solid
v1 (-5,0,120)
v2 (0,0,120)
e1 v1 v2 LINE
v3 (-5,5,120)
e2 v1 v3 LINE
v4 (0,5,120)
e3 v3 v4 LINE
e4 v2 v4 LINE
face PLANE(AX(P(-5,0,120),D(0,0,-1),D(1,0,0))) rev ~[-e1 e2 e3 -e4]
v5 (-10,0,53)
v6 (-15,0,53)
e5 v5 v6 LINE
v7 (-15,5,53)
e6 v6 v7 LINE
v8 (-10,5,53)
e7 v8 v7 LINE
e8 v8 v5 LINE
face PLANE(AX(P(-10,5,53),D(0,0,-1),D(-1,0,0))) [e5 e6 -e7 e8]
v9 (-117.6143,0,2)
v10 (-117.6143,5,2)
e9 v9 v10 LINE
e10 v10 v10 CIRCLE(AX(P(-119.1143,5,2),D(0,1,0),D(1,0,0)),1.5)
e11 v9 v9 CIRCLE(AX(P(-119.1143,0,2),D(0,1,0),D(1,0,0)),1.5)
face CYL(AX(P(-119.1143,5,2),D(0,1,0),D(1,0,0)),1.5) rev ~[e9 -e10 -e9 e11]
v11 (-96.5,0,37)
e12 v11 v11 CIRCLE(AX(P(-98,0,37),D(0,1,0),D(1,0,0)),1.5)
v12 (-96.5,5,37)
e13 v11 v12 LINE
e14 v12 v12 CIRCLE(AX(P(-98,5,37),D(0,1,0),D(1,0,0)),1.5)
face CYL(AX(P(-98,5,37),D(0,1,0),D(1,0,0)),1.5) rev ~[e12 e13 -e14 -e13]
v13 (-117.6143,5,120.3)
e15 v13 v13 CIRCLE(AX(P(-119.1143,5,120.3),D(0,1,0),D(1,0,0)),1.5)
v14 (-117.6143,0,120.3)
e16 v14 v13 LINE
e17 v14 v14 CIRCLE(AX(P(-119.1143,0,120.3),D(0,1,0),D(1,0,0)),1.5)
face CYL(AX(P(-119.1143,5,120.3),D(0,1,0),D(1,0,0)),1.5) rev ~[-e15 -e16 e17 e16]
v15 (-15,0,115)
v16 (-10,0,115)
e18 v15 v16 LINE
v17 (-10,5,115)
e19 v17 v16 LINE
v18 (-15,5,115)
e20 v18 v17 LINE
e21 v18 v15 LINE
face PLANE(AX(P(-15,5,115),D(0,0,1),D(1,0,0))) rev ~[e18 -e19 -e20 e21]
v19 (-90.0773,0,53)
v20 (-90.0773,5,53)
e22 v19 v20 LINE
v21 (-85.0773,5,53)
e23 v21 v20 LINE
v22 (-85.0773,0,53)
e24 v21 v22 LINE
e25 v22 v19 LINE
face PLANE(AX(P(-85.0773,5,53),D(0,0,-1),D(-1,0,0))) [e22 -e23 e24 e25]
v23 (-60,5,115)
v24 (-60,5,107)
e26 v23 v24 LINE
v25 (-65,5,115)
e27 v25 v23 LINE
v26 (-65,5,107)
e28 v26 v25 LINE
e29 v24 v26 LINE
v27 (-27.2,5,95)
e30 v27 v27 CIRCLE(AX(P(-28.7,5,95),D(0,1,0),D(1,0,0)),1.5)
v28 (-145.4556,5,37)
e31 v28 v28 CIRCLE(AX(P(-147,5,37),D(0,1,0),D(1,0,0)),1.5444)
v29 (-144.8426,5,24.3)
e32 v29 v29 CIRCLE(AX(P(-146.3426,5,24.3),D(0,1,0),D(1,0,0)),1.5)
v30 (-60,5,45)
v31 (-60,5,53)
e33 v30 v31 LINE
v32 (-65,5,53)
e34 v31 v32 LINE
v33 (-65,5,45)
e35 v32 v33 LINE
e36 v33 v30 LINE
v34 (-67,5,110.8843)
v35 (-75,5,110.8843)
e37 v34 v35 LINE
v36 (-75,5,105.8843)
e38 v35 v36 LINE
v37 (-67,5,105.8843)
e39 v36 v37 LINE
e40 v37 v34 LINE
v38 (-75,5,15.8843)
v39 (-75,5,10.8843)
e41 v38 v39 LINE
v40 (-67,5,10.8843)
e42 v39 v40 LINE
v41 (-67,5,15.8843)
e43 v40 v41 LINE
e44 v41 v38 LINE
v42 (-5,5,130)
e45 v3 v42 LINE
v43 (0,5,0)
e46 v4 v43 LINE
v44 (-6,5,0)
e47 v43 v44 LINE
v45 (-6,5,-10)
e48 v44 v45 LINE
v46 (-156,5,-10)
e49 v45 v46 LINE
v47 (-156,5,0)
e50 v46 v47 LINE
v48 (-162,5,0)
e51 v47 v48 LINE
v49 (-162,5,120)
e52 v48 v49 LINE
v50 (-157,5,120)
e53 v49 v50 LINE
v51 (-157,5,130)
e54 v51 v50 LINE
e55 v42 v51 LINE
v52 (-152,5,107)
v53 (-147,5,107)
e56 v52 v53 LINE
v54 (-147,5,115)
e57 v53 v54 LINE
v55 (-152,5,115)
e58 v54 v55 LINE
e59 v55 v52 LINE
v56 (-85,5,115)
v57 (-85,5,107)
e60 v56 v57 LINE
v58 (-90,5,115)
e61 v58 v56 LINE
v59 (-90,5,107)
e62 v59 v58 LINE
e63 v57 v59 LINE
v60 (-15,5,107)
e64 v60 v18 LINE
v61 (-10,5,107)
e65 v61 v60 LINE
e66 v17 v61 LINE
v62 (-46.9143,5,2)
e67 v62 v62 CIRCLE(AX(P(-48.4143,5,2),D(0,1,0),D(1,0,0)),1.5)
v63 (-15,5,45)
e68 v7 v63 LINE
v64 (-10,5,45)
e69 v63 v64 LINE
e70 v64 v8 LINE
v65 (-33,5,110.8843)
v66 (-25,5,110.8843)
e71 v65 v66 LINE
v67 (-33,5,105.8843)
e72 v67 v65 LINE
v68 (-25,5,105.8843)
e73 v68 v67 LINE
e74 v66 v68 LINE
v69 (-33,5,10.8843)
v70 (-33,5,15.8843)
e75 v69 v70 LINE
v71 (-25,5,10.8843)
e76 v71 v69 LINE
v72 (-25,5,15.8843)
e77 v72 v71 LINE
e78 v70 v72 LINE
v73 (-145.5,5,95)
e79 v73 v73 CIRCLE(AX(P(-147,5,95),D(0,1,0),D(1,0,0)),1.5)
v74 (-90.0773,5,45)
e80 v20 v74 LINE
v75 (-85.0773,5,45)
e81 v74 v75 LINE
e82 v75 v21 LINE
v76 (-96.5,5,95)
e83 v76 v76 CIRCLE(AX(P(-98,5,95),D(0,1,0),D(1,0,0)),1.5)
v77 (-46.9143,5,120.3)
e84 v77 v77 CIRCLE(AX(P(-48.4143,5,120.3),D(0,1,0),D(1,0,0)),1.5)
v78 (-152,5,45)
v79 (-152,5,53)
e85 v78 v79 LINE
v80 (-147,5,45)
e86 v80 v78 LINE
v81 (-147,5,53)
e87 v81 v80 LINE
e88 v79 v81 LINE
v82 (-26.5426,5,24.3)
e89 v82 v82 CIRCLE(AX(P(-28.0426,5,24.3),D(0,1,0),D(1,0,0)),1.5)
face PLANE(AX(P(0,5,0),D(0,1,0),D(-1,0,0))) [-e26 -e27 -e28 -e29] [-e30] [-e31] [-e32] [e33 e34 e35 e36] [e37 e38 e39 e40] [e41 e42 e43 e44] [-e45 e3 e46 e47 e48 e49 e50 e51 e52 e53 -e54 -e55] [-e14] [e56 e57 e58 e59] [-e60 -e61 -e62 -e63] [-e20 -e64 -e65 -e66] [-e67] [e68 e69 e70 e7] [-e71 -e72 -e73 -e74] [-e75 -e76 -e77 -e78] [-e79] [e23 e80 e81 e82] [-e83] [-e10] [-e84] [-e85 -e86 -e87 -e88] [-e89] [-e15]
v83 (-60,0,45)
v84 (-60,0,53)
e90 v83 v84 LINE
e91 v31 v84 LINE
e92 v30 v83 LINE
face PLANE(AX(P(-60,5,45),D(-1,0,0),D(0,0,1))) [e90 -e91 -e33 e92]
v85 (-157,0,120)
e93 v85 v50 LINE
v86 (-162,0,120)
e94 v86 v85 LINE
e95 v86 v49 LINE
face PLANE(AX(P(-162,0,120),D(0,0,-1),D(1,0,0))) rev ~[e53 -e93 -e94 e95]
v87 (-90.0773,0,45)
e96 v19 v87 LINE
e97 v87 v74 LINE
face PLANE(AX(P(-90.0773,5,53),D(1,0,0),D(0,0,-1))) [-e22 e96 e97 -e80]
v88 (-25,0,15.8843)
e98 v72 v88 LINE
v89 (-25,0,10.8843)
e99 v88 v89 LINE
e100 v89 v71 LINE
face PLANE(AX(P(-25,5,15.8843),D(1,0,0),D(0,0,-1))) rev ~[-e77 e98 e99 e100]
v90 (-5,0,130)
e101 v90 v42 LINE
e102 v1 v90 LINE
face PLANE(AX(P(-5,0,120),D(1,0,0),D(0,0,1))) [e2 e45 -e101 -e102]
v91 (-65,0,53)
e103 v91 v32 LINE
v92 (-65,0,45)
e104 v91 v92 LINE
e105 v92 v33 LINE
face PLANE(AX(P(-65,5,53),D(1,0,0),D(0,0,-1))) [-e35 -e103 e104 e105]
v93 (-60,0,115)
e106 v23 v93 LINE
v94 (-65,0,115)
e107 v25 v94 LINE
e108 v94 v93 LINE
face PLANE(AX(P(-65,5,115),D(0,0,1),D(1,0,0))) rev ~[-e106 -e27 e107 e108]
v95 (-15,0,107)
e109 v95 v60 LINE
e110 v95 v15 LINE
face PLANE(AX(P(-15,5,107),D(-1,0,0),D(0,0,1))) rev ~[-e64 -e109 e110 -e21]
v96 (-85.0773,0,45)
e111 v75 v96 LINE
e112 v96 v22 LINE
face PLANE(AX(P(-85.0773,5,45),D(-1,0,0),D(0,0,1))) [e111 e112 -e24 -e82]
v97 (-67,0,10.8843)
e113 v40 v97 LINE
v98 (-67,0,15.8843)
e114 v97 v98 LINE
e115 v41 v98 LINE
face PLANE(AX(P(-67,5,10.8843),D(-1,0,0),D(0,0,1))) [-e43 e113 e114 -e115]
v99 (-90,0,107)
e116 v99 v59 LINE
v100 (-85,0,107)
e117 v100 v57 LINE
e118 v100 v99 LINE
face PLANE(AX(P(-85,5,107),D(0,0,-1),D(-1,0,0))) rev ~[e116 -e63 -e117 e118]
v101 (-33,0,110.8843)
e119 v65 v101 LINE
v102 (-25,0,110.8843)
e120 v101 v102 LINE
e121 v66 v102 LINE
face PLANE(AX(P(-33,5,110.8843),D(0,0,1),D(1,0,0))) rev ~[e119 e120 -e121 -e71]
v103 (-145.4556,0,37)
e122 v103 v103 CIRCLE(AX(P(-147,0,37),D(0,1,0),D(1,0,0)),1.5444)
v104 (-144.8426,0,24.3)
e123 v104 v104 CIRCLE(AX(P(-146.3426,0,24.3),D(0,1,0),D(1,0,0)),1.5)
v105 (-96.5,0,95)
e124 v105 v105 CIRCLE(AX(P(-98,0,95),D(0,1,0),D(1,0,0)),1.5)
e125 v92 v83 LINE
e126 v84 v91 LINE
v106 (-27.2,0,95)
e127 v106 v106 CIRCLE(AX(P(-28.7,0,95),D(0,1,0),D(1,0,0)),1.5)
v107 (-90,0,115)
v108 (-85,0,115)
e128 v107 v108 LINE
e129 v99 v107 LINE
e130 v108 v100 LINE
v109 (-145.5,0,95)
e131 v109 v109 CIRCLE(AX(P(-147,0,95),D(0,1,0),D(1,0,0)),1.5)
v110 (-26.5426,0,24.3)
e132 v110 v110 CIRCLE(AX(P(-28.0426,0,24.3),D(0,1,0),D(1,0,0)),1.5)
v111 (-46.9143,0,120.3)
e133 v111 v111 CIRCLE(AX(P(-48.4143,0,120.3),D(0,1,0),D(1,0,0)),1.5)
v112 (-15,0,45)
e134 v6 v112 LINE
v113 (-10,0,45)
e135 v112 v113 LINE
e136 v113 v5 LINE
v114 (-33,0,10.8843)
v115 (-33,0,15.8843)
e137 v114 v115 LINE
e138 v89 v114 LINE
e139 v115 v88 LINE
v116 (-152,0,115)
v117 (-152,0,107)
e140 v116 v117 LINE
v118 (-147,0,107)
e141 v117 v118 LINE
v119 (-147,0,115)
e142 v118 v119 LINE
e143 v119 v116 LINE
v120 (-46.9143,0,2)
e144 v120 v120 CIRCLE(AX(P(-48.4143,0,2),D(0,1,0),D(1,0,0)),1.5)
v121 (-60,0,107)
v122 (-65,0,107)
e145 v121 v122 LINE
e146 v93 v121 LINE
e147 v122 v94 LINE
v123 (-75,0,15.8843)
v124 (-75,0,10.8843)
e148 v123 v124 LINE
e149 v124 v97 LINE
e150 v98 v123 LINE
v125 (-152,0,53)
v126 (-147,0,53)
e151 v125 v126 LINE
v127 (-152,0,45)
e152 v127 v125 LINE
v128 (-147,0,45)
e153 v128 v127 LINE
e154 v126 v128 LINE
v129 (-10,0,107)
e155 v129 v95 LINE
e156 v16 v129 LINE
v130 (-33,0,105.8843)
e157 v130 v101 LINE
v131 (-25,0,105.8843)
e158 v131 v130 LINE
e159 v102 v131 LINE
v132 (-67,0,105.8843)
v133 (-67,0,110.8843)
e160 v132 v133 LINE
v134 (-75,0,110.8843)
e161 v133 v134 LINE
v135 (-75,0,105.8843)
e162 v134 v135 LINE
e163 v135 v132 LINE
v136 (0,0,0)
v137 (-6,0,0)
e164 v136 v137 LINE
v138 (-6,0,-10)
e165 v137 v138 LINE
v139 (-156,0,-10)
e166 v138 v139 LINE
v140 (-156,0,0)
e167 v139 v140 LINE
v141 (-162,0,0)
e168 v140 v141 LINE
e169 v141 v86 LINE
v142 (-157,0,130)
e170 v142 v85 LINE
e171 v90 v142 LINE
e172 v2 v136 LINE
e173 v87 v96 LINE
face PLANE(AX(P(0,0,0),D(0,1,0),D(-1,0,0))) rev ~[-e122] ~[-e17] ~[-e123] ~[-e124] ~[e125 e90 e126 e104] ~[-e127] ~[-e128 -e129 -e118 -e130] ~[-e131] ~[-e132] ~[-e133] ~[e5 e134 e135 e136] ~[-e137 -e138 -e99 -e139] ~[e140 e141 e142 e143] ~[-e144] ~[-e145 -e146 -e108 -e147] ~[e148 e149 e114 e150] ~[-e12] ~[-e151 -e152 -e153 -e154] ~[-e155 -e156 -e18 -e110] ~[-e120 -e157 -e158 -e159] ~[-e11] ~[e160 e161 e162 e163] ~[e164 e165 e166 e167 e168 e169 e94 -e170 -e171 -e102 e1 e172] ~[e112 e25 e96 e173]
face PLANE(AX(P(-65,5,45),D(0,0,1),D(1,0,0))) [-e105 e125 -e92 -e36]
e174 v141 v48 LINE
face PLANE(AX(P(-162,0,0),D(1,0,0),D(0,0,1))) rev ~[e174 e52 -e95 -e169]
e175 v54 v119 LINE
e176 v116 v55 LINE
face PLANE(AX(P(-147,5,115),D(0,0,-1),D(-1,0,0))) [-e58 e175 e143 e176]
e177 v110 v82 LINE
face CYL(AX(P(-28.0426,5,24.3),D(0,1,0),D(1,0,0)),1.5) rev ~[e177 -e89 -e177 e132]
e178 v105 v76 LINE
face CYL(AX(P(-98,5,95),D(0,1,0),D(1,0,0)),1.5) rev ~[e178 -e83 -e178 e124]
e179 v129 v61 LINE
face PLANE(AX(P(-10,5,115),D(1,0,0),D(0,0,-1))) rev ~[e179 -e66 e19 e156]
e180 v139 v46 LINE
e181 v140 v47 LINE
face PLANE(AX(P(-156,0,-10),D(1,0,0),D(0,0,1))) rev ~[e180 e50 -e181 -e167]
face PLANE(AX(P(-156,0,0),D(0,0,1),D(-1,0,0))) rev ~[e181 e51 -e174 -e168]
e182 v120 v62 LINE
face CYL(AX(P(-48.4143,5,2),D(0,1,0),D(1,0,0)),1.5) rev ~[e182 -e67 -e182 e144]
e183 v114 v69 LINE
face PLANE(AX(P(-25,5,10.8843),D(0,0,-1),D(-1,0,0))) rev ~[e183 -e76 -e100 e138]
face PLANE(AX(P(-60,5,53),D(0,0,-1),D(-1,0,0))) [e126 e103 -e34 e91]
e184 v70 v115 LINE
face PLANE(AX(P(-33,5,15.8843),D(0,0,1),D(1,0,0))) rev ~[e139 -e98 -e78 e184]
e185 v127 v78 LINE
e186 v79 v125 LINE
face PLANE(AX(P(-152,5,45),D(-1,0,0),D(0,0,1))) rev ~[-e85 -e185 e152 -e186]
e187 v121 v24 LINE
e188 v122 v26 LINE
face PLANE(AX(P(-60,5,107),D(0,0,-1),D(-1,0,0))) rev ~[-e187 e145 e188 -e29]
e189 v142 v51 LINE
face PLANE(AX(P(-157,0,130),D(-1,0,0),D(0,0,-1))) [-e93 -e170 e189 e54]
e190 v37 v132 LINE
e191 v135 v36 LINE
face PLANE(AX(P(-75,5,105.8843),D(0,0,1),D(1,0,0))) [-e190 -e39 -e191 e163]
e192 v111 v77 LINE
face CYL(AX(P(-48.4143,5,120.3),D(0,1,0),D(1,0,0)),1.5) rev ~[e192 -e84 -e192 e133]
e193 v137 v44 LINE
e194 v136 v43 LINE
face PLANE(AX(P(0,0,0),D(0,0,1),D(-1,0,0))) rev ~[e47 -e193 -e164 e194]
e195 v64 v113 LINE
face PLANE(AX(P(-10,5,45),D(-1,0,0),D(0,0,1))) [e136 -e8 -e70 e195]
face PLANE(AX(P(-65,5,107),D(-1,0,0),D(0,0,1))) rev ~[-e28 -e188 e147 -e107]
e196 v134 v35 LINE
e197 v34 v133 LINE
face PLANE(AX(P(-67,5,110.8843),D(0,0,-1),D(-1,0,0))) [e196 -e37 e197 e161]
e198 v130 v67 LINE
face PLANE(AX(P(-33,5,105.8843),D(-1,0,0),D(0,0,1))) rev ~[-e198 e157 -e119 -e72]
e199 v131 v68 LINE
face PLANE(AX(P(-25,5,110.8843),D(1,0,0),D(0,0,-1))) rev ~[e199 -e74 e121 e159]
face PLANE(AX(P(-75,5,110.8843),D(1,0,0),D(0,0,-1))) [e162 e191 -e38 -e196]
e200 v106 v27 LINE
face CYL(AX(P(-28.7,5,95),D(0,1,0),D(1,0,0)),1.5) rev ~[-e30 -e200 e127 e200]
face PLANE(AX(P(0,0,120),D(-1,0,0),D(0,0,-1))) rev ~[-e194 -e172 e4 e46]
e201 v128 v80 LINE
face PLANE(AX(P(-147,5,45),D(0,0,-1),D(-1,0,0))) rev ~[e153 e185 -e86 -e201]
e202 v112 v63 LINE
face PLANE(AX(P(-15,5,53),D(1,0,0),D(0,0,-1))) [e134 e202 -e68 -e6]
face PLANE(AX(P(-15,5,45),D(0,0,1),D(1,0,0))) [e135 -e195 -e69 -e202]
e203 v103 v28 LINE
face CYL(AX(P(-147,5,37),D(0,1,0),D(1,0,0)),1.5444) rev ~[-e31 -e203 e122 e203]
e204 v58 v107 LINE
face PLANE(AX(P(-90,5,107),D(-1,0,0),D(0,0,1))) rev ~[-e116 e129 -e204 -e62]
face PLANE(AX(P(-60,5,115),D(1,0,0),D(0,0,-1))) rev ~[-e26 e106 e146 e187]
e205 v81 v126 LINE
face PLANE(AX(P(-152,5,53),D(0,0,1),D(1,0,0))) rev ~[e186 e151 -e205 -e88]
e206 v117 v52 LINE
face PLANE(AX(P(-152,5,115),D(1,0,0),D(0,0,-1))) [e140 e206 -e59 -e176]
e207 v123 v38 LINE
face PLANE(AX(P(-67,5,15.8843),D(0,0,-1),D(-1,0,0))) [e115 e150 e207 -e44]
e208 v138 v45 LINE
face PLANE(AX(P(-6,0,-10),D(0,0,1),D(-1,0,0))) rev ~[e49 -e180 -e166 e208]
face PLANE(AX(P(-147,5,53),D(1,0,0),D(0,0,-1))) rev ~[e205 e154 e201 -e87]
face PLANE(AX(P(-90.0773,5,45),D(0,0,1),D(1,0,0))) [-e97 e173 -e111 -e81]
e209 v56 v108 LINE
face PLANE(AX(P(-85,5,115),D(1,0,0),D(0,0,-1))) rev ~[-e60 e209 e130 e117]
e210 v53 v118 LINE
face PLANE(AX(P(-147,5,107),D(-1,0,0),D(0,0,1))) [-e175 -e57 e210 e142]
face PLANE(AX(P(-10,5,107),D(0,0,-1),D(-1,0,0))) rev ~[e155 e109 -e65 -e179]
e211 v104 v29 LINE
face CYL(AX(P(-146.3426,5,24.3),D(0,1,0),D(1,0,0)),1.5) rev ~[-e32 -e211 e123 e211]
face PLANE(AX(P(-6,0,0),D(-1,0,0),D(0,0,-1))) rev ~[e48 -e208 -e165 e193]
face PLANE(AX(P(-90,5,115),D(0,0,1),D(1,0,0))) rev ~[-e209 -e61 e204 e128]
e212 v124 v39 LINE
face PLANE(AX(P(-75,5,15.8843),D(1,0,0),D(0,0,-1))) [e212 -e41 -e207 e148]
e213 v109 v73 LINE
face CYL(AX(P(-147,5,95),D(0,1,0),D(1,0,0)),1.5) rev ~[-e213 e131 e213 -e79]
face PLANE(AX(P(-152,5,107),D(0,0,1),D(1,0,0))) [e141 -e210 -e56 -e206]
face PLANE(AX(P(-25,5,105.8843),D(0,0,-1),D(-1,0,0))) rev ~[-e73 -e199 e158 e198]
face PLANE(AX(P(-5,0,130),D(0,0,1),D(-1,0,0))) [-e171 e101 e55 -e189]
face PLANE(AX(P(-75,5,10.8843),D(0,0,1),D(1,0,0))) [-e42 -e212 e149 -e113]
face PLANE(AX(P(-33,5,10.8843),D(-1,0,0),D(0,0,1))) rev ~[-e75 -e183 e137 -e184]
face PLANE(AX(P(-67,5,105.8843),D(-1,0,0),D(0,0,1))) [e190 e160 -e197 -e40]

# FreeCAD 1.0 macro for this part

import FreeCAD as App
import Part
import Sketcher

doc = App.newDocument("Part")
body = doc.addObject("PartDesign::Body", "Body")

sketch1 = body.newObject("Sketcher::SketchObject", "Sketch")
sketch1.AttachmentSupport = (doc.getObject("XZ_Plane"), [""])
sketch1.MapMode = "FlatFace"
sketch1.addGeometry(Part.LineSegment(App.Vector(0, 120, 0), App.Vector(0, 0, 0)), False)
sketch1.addGeometry(Part.LineSegment(App.Vector(0, 0, 0), App.Vector(-6, 0, 0)), False)
sketch1.addGeometry(Part.LineSegment(App.Vector(-6, 0, 0), App.Vector(-6, -10, 0)), False)
sketch1.addGeometry(Part.LineSegment(App.Vector(-6, -10, 0), App.Vector(-156, -10, 0)), False)
sketch1.addGeometry(Part.LineSegment(App.Vector(-156, -10, 0), App.Vector(-156, 0, 0)), False)
sketch1.addGeometry(Part.LineSegment(App.Vector(-156, 0, 0), App.Vector(-162, 0, 0)), False)
sketch1.addGeometry(Part.LineSegment(App.Vector(-162, 0, 0), App.Vector(-162, 120, 0)), False)
sketch1.addGeometry(Part.LineSegment(App.Vector(-162, 120, 0), App.Vector(-157, 120, 0)), False)
sketch1.addGeometry(Part.LineSegment(App.Vector(-157, 120, 0), App.Vector(-157, 130, 0)), False)
sketch1.addGeometry(Part.LineSegment(App.Vector(-157, 130, 0), App.Vector(-5, 130, 0)), False)
sketch1.addGeometry(Part.LineSegment(App.Vector(-5, 130, 0), App.Vector(-5, 120, 0)), False)
sketch1.addGeometry(Part.LineSegment(App.Vector(-5, 120, 0), App.Vector(0, 120, 0)), False)
sketch1.addConstraint(Sketcher.Constraint("Coincident", 0, 2, 1, 1))
sketch1.addConstraint(Sketcher.Constraint("Coincident", 1, 2, 2, 1))
sketch1.addConstraint(Sketcher.Constraint("Coincident", 2, 2, 3, 1))
sketch1.addConstraint(Sketcher.Constraint("Coincident", 3, 2, 4, 1))
sketch1.addConstraint(Sketcher.Constraint("Coincident", 4, 2, 5, 1))
sketch1.addConstraint(Sketcher.Constraint("Coincident", 5, 2, 6, 1))
sketch1.addConstraint(Sketcher.Constraint("Coincident", 6, 2, 7, 1))
sketch1.addConstraint(Sketcher.Constraint("Coincident", 7, 2, 8, 1))
sketch1.addConstraint(Sketcher.Constraint("Coincident", 8, 2, 9, 1))
sketch1.addConstraint(Sketcher.Constraint("Coincident", 9, 2, 10, 1))
sketch1.addConstraint(Sketcher.Constraint("Coincident", 10, 2, 11, 1))
sketch1.addConstraint(Sketcher.Constraint("Coincident", 11, 2, 0, 1))
sketch1.addConstraint(Sketcher.Constraint("Vertical", 0))
sketch1.addConstraint(Sketcher.Constraint("Horizontal", 1))
sketch1.addConstraint(Sketcher.Constraint("Vertical", 2))
sketch1.addConstraint(Sketcher.Constraint("Horizontal", 3))
sketch1.addConstraint(Sketcher.Constraint("Vertical", 4))
sketch1.addConstraint(Sketcher.Constraint("Horizontal", 5))
sketch1.addConstraint(Sketcher.Constraint("Vertical", 6))
sketch1.addConstraint(Sketcher.Constraint("Horizontal", 7))
sketch1.addConstraint(Sketcher.Constraint("Vertical", 8))
sketch1.addConstraint(Sketcher.Constraint("Horizontal", 9))
sketch1.addConstraint(Sketcher.Constraint("Vertical", 10))
sketch1.addConstraint(Sketcher.Constraint("Horizontal", 11))
sketch1.addConstraint(Sketcher.Constraint("Coincident", 0, 2, -1, 1))
sketch1.addConstraint(Sketcher.Constraint("PointOnObject", 4, 2, -1))
sketch1.addConstraint(Sketcher.Constraint("Horizontal", 7, 2, 10, 2))
sketch1.addConstraint(Sketcher.Constraint("Equal", 1, 5))
sketch1.addConstraint(Sketcher.Constraint("Equal", 7, 11))
sketch1.addConstraint(Sketcher.Constraint("Equal", 4, 8))
sketch1.addConstraint(Sketcher.Constraint("DistanceX", 3, 2, 3, 1, 150.0))
sketch1.addConstraint(Sketcher.Constraint("DistanceX", 7, 1, 7, 2, 5.0))
sketch1.addConstraint(Sketcher.Constraint("DistanceY", 0, 2, 0, 1, 120.0))
sketch1.addConstraint(Sketcher.Constraint("DistanceY", 2, 2, 2, 1, 10.0))
sketch1.addConstraint(Sketcher.Constraint("DistanceX", 5, 2, -1, 1, 162.0))
pad1 = body.newObject("PartDesign::Pad", "Pad")
pad1.Profile = sketch1
pad1.Length = 5
pad1.Reversed = True

sketch2 = body.newObject("Sketcher::SketchObject", "Sketch001")
sketch2.AttachmentSupport = (doc.getObject("XZ_Plane"), [""])
sketch2.MapMode = "FlatFace"
sketch2.AttachmentOffset = App.Placement(App.Vector(0, 0, -5), App.Rotation())
sketch2.addGeometry(Part.Circle(App.Vector(-147, 37, 0), App.Vector(0, 0, 1), 1.5444), False)
sketch2.addGeometry(Part.Circle(App.Vector(-98, 37, 0), App.Vector(0, 0, 1), 1.5), False)
sketch2.addGeometry(Part.Circle(App.Vector(-98, 95, 0), App.Vector(0, 0, 1), 1.5), False)
sketch2.addGeometry(Part.Circle(App.Vector(-147, 95, 0), App.Vector(0, 0, 1), 1.5), False)
sketch2.addGeometry(Part.Circle(App.Vector(-28.0426, 24.3, 0), App.Vector(0, 0, 1), 1.5), False)
sketch2.addGeometry(Part.Circle(App.Vector(-146.3426, 24.3, 0), App.Vector(0, 0, 1), 1.5), False)
sketch2.addGeometry(Part.Circle(App.Vector(-28.7, 95, 0), App.Vector(0, 0, 1), 1.5), False)
sketch2.addGeometry(Part.LineSegment(App.Vector(-67, 105.8843, 0), App.Vector(-75, 105.8843, 0)), False)
sketch2.addGeometry(Part.LineSegment(App.Vector(-75, 105.8843, 0), App.Vector(-75, 110.8843, 0)), False)
sketch2.addGeometry(Part.LineSegment(App.Vector(-75, 110.8843, 0), App.Vector(-67, 110.8843, 0)), False)
sketch2.addGeometry(Part.LineSegment(App.Vector(-67, 110.8843, 0), App.Vector(-67, 105.8843, 0)), False)
sketch2.addGeometry(Part.LineSegment(App.Vector(-67, 10.8843, 0), App.Vector(-75, 10.8843, 0)), False)
sketch2.addGeometry(Part.LineSegment(App.Vector(-75, 10.8843, 0), App.Vector(-75, 15.8843, 0)), False)
sketch2.addGeometry(Part.LineSegment(App.Vector(-75, 15.8843, 0), App.Vector(-67, 15.8843, 0)), False)
sketch2.addGeometry(Part.LineSegment(App.Vector(-67, 15.8843, 0), App.Vector(-67, 10.8843, 0)), False)
sketch2.addGeometry(Part.LineSegment(App.Vector(-25, 15.8843, 0), App.Vector(-25, 10.8843, 0)), False)
sketch2.addGeometry(Part.LineSegment(App.Vector(-25, 10.8843, 0), App.Vector(-33, 10.8843, 0)), False)
sketch2.addGeometry(Part.LineSegment(App.Vector(-33, 10.8843, 0), App.Vector(-33, 15.8843, 0)), False)
sketch2.addGeometry(Part.LineSegment(App.Vector(-33, 15.8843, 0), App.Vector(-25, 15.8843, 0)), False)
sketch2.addGeometry(Part.LineSegment(App.Vector(-25, 110.8843, 0), App.Vector(-25, 105.8843, 0)), False)
sketch2.addGeometry(Part.LineSegment(App.Vector(-25, 105.8843, 0), App.Vector(-33, 105.8843, 0)), False)
sketch2.addGeometry(Part.LineSegment(App.Vector(-33, 105.8843, 0), App.Vector(-33, 110.8843, 0)), False)
sketch2.addGeometry(Part.LineSegment(App.Vector(-33, 110.8843, 0), App.Vector(-25, 110.8843, 0)), False)
sketch2.addGeometry(Part.LineSegment(App.Vector(-10, 45, 0), App.Vector(-15, 45, 0)), False)
sketch2.addGeometry(Part.LineSegment(App.Vector(-15, 45, 0), App.Vector(-15, 53, 0)), False)
sketch2.addGeometry(Part.LineSegment(App.Vector(-15, 53, 0), App.Vector(-10, 53, 0)), False)
sketch2.addGeometry(Part.LineSegment(App.Vector(-10, 53, 0), App.Vector(-10, 45, 0)), False)
sketch2.addGeometry(Part.LineSegment(App.Vector(-60, 45, 0), App.Vector(-65, 45, 0)), False)
sketch2.addGeometry(Part.LineSegment(App.Vector(-65, 45, 0), App.Vector(-65, 53, 0)), False)
sketch2.addGeometry(Part.LineSegment(App.Vector(-65, 53, 0), App.Vector(-60, 53, 0)), False)
sketch2.addGeometry(Part.LineSegment(App.Vector(-60, 53, 0), App.Vector(-60, 45, 0)), False)
sketch2.addGeometry(Part.LineSegment(App.Vector(-60, 115, 0), App.Vector(-60, 107, 0)), False)
sketch2.addGeometry(Part.LineSegment(App.Vector(-60, 107, 0), App.Vector(-65, 107, 0)), False)
sketch2.addGeometry(Part.LineSegment(App.Vector(-65, 107, 0), App.Vector(-65, 115, 0)), False)
sketch2.addGeometry(Part.LineSegment(App.Vector(-65, 115, 0), App.Vector(-60, 115, 0)), False)
sketch2.addGeometry(Part.LineSegment(App.Vector(-10, 115, 0), App.Vector(-10, 107, 0)), False)
sketch2.addGeometry(Part.LineSegment(App.Vector(-10, 107, 0), App.Vector(-15, 107, 0)), False)
sketch2.addGeometry(Part.LineSegment(App.Vector(-15, 107, 0), App.Vector(-15, 115, 0)), False)
sketch2.addGeometry(Part.LineSegment(App.Vector(-15, 115, 0), App.Vector(-10, 115, 0)), False)
sketch2.addGeometry(Part.LineSegment(App.Vector(-147, 107, 0), App.Vector(-152, 107, 0)), False)
sketch2.addGeometry(Part.LineSegment(App.Vector(-152, 107, 0), App.Vector(-152, 115, 0)), False)
sketch2.addGeometry(Part.LineSegment(App.Vector(-152, 115, 0), App.Vector(-147, 115, 0)), False)
sketch2.addGeometry(Part.LineSegment(App.Vector(-147, 115, 0), App.Vector(-147, 107, 0)), False)
sketch2.addGeometry(Part.LineSegment(App.Vector(-147, 53, 0), App.Vector(-147, 45, 0)), False)
sketch2.addGeometry(Part.LineSegment(App.Vector(-147, 45, 0), App.Vector(-152, 45, 0)), False)
sketch2.addGeometry(Part.LineSegment(App.Vector(-152, 45, 0), App.Vector(-152, 53, 0)), False)
sketch2.addGeometry(Part.LineSegment(App.Vector(-152, 53, 0), App.Vector(-147, 53, 0)), False)
sketch2.addGeometry(Part.LineSegment(App.Vector(-85.0773, 45, 0), App.Vector(-90.0773, 45, 0)), False)
sketch2.addGeometry(Part.LineSegment(App.Vector(-90.0773, 45, 0), App.Vector(-90.0773, 53, 0)), False)
sketch2.addGeometry(Part.LineSegment(App.Vector(-90.0773, 53, 0), App.Vector(-85.0773, 53, 0)), False)
sketch2.addGeometry(Part.LineSegment(App.Vector(-85.0773, 53, 0), App.Vector(-85.0773, 45, 0)), False)
sketch2.addGeometry(Part.LineSegment(App.Vector(-85, 115, 0), App.Vector(-85, 107, 0)), False)
sketch2.addGeometry(Part.LineSegment(App.Vector(-85, 107, 0), App.Vector(-90, 107, 0)), False)
sketch2.addGeometry(Part.LineSegment(App.Vector(-90, 107, 0), App.Vector(-90, 115, 0)), False)
sketch2.addGeometry(Part.LineSegment(App.Vector(-90, 115, 0), App.Vector(-85, 115, 0)), False)
sketch2.addConstraint(Sketcher.Constraint("Coincident", 7, 2, 8, 1))
sketch2.addConstraint(Sketcher.Constraint("Coincident", 8, 2, 9, 1))
sketch2.addConstraint(Sketcher.Constraint("Coincident", 9, 2, 10, 1))
sketch2.addConstraint(Sketcher.Constraint("Coincident", 10, 2, 7, 1))
sketch2.addConstraint(Sketcher.Constraint("Coincident", 11, 2, 12, 1))
sketch2.addConstraint(Sketcher.Constraint("Coincident", 12, 2, 13, 1))
sketch2.addConstraint(Sketcher.Constraint("Coincident", 13, 2, 14, 1))
sketch2.addConstraint(Sketcher.Constraint("Coincident", 14, 2, 11, 1))
sketch2.addConstraint(Sketcher.Constraint("Coincident", 15, 2, 16, 1))
sketch2.addConstraint(Sketcher.Constraint("Coincident", 16, 2, 17, 1))
sketch2.addConstraint(Sketcher.Constraint("Coincident", 17, 2, 18, 1))
sketch2.addConstraint(Sketcher.Constraint("Coincident", 18, 2, 15, 1))
sketch2.addConstraint(Sketcher.Constraint("Coincident", 19, 2, 20, 1))
sketch2.addConstraint(Sketcher.Constraint("Coincident", 20, 2, 21, 1))
sketch2.addConstraint(Sketcher.Constraint("Coincident", 21, 2, 22, 1))
sketch2.addConstraint(Sketcher.Constraint("Coincident", 22, 2, 19, 1))
sketch2.addConstraint(Sketcher.Constraint("Coincident", 23, 2, 24, 1))
sketch2.addConstraint(Sketcher.Constraint("Coincident", 24, 2, 25, 1))
sketch2.addConstraint(Sketcher.Constraint("Coincident", 25, 2, 26, 1))
sketch2.addConstraint(Sketcher.Constraint("Coincident", 26, 2, 23, 1))
sketch2.addConstraint(Sketcher.Constraint("Coincident", 27, 2, 28, 1))
sketch2.addConstraint(Sketcher.Constraint("Coincident", 28, 2, 29, 1))
sketch2.addConstraint(Sketcher.Constraint("Coincident", 29, 2, 30, 1))
sketch2.addConstraint(Sketcher.Constraint("Coincident", 30, 2, 27, 1))
sketch2.addConstraint(Sketcher.Constraint("Coincident", 31, 2, 32, 1))
sketch2.addConstraint(Sketcher.Constraint("Coincident", 32, 2, 33, 1))
sketch2.addConstraint(Sketcher.Constraint("Coincident", 33, 2, 34, 1))
sketch2.addConstraint(Sketcher.Constraint("Coincident", 34, 2, 31, 1))
sketch2.addConstraint(Sketcher.Constraint("Coincident", 35, 2, 36, 1))
sketch2.addConstraint(Sketcher.Constraint("Coincident", 36, 2, 37, 1))
sketch2.addConstraint(Sketcher.Constraint("Coincident", 37, 2, 38, 1))
sketch2.addConstraint(Sketcher.Constraint("Coincident", 38, 2, 35, 1))
sketch2.addConstraint(Sketcher.Constraint("Coincident", 39, 2, 40, 1))
sketch2.addConstraint(Sketcher.Constraint("Coincident", 40, 2, 41, 1))
sketch2.addConstraint(Sketcher.Constraint("Coincident", 41, 2, 42, 1))
sketch2.addConstraint(Sketcher.Constraint("Coincident", 42, 2, 39, 1))
sketch2.addConstraint(Sketcher.Constraint("Coincident", 43, 2, 44, 1))
sketch2.addConstraint(Sketcher.Constraint("Coincident", 44, 2, 45, 1))
sketch2.addConstraint(Sketcher.Constraint("Coincident", 45, 2, 46, 1))
sketch2.addConstraint(Sketcher.Constraint("Coincident", 46, 2, 43, 1))
sketch2.addConstraint(Sketcher.Constraint("Coincident", 47, 2, 48, 1))
sketch2.addConstraint(Sketcher.Constraint("Coincident", 48, 2, 49, 1))
sketch2.addConstraint(Sketcher.Constraint("Coincident", 49, 2, 50, 1))
sketch2.addConstraint(Sketcher.Constraint("Coincident", 50, 2, 47, 1))
sketch2.addConstraint(Sketcher.Constraint("Coincident", 51, 2, 52, 1))
sketch2.addConstraint(Sketcher.Constraint("Coincident", 52, 2, 53, 1))
sketch2.addConstraint(Sketcher.Constraint("Coincident", 53, 2, 54, 1))
sketch2.addConstraint(Sketcher.Constraint("Coincident", 54, 2, 51, 1))
sketch2.addConstraint(Sketcher.Constraint("Horizontal", 7))
sketch2.addConstraint(Sketcher.Constraint("Vertical", 8))
sketch2.addConstraint(Sketcher.Constraint("Horizontal", 9))
sketch2.addConstraint(Sketcher.Constraint("Vertical", 10))
sketch2.addConstraint(Sketcher.Constraint("Horizontal", 11))
sketch2.addConstraint(Sketcher.Constraint("Vertical", 12))
sketch2.addConstraint(Sketcher.Constraint("Horizontal", 13))
sketch2.addConstraint(Sketcher.Constraint("Vertical", 14))
sketch2.addConstraint(Sketcher.Constraint("Vertical", 15))
sketch2.addConstraint(Sketcher.Constraint("Horizontal", 16))
sketch2.addConstraint(Sketcher.Constraint("Vertical", 17))
sketch2.addConstraint(Sketcher.Constraint("Horizontal", 18))
sketch2.addConstraint(Sketcher.Constraint("Vertical", 19))
sketch2.addConstraint(Sketcher.Constraint("Horizontal", 20))
sketch2.addConstraint(Sketcher.Constraint("Vertical", 21))
sketch2.addConstraint(Sketcher.Constraint("Horizontal", 22))
sketch2.addConstraint(Sketcher.Constraint("Horizontal", 23))
sketch2.addConstraint(Sketcher.Constraint("Vertical", 24))
sketch2.addConstraint(Sketcher.Constraint("Horizontal", 25))
sketch2.addConstraint(Sketcher.Constraint("Vertical", 26))
sketch2.addConstraint(Sketcher.Constraint("Horizontal", 27))
sketch2.addConstraint(Sketcher.Constraint("Vertical", 28))
sketch2.addConstraint(Sketcher.Constraint("Horizontal", 29))
sketch2.addConstraint(Sketcher.Constraint("Vertical", 30))
sketch2.addConstraint(Sketcher.Constraint("Vertical", 31))
sketch2.addConstraint(Sketcher.Constraint("Horizontal", 32))
sketch2.addConstraint(Sketcher.Constraint("Vertical", 33))
sketch2.addConstraint(Sketcher.Constraint("Horizontal", 34))
sketch2.addConstraint(Sketcher.Constraint("Vertical", 35))
sketch2.addConstraint(Sketcher.Constraint("Horizontal", 36))
sketch2.addConstraint(Sketcher.Constraint("Vertical", 37))
sketch2.addConstraint(Sketcher.Constraint("Horizontal", 38))
sketch2.addConstraint(Sketcher.Constraint("Horizontal", 39))
sketch2.addConstraint(Sketcher.Constraint("Vertical", 40))
sketch2.addConstraint(Sketcher.Constraint("Horizontal", 41))
sketch2.addConstraint(Sketcher.Constraint("Vertical", 42))
sketch2.addConstraint(Sketcher.Constraint("Vertical", 43))
sketch2.addConstraint(Sketcher.Constraint("Horizontal", 44))
sketch2.addConstraint(Sketcher.Constraint("Vertical", 45))
sketch2.addConstraint(Sketcher.Constraint("Horizontal", 46))
sketch2.addConstraint(Sketcher.Constraint("Horizontal", 47))
sketch2.addConstraint(Sketcher.Constraint("Vertical", 48))
sketch2.addConstraint(Sketcher.Constraint("Horizontal", 49))
sketch2.addConstraint(Sketcher.Constraint("Vertical", 50))
sketch2.addConstraint(Sketcher.Constraint("Vertical", 51))
sketch2.addConstraint(Sketcher.Constraint("Horizontal", 52))
sketch2.addConstraint(Sketcher.Constraint("Vertical", 53))
sketch2.addConstraint(Sketcher.Constraint("Horizontal", 54))
sketch2.addConstraint(Sketcher.Constraint("Equal", 1, 2))
sketch2.addConstraint(Sketcher.Constraint("Equal", 2, 3))
sketch2.addConstraint(Sketcher.Constraint("Equal", 3, 4))
sketch2.addConstraint(Sketcher.Constraint("Equal", 4, 5))
sketch2.addConstraint(Sketcher.Constraint("Equal", 5, 6))
sketch2.addConstraint(Sketcher.Constraint("Horizontal", 0, 3, 1, 3))
sketch2.addConstraint(Sketcher.Constraint("Horizontal", 2, 3, 3, 3))
sketch2.addConstraint(Sketcher.Constraint("Horizontal", 4, 3, 5, 3))
sketch2.addConstraint(Sketcher.Constraint("Horizontal", 3, 3, 6, 3))
sketch2.addConstraint(Sketcher.Constraint("Horizontal", 14, 2, 15, 2))
sketch2.addConstraint(Sketcher.Constraint("Horizontal", 13, 2, 17, 2))
sketch2.addConstraint(Sketcher.Constraint("Horizontal", 10, 2, 19, 2))
sketch2.addConstraint(Sketcher.Constraint("Horizontal", 9, 2, 21, 2))
sketch2.addConstraint(Sketcher.Constraint("Horizontal", 26, 2, 27, 2))
sketch2.addConstraint(Sketcher.Constraint("Horizontal", 25, 2, 28, 2))
sketch2.addConstraint(Sketcher.Constraint("Horizontal", 32, 2, 35, 2))
sketch2.addConstraint(Sketcher.Constraint("Horizontal", 34, 2, 37, 2))
sketch2.addConstraint(Sketcher.Constraint("Horizontal", 36, 2, 39, 2))
sketch2.addConstraint(Sketcher.Constraint("Horizontal", 38, 2, 40, 2))
sketch2.addConstraint(Sketcher.Constraint("Horizontal", 30, 2, 43, 2))
sketch2.addConstraint(Sketcher.Constraint("Horizontal", 29, 2, 45, 2))
sketch2.addConstraint(Sketcher.Constraint("Horizontal", 44, 2, 47, 2))
sketch2.addConstraint(Sketcher.Constraint("Horizontal", 46, 2, 48, 2))
sketch2.addConstraint(Sketcher.Constraint("Horizontal", 42, 2, 51, 2))
sketch2.addConstraint(Sketcher.Constraint("Horizontal", 41, 2, 53, 2))
sketch2.addConstraint(Sketcher.Constraint("Vertical", 1, 3, 2, 3))
sketch2.addConstraint(Sketcher.Constraint("Vertical", 0, 3, 3, 3))
sketch2.addConstraint(Sketcher.Constraint("Vertical", 8, 2, 11, 2))
sketch2.addConstraint(Sketcher.Constraint("Vertical", 10, 2, 13, 2))
sketch2.addConstraint(Sketcher.Constraint("Vertical", 18, 2, 19, 2))
sketch2.addConstraint(Sketcher.Constraint("Vertical", 17, 2, 20, 2))
sketch2.addConstraint(Sketcher.Constraint("Vertical", 30, 2, 31, 2))
sketch2.addConstraint(Sketcher.Constraint("Vertical", 28, 2, 32, 2))
sketch2.addConstraint(Sketcher.Constraint("Vertical", 26, 2, 35, 2))
sketch2.addConstraint(Sketcher.Constraint("Vertical", 24, 2, 36, 2))
sketch2.addConstraint(Sketcher.Constraint("Vertical", 3, 3, 41, 2))
sketch2.addConstraint(Sketcher.Constraint("Vertical", 42, 2, 43, 2))
sketch2.addConstraint(Sketcher.Constraint("Vertical", 40, 2, 44, 2))
sketch2.addConstraint(Sketcher.Constraint("Equal", 13, 16))
sketch2.addConstraint(Sketcher.Constraint("Equal", 25, 27))
sketch2.addConstraint(Sketcher.Constraint("Equal", 38, 39))
sketch2.addConstraint(Sketcher.Constraint("Equal", 46, 47))
sketch2.addConstraint(Sketcher.Constraint("Equal", 49, 52))
sketch2.addConstraint(Sketcher.Constraint("Equal", 54, 8))
sketch2.addConstraint(Sketcher.Constraint("Equal", 10, 12))
sketch2.addConstraint(Sketcher.Constraint("Equal", 22, 24))
sketch2.addConstraint(Sketcher.Constraint("Equal", 30, 31))
sketch2.addConstraint(Sketcher.Constraint("Diameter", 1, 3.0))
sketch2.addConstraint(Sketcher.Constraint("DistanceX", 7, 2, 7, 1, 8.0))
sketch2.addConstraint(Sketcher.Constraint("DistanceX", 23, 2, 23, 1, 5.0))
sketch2.addConstraint(Sketcher.Constraint("DistanceX", 15, 2, -1, 1, 25.0))
sketch2.addConstraint(Sketcher.Constraint("DistanceX", 23, 2, -1, 1, 15.0))
sketch2.addConstraint(Sketcher.Constraint("DistanceX", 52, 2, -1, 1, 90.0))
sketch2.addConstraint(Sketcher.Constraint("DistanceX", 0, 3, 1, 3, 49.0))
sketch2.addConstraint(Sketcher.Constraint("DistanceY", 1, 3, 2, 3, 58.0))
sketch2.addConstraint(Sketcher.Constraint("DistanceX", 11, 2, 15, 2, 50.0))
sketch2.addConstraint(Sketcher.Constraint("DistanceX", 12, 2, 27, 2, 10.0))
sketch2.addConstraint(Sketcher.Constraint("DistanceY", 1, 3, 27, 2, 8.0))
sketch2.addConstraint(Sketcher.Constraint("DistanceY", 0, 3, 39, 2, 70.0))
sketch2.addConstraint(Sketcher.Constraint("DistanceX", 2, 3, 52, 2, 8.0))
sketch2.addConstraint(Sketcher.Constraint("Diameter", 0, 3.0888))
sketch2.addConstraint(Sketcher.Constraint("DistanceY", 4, 3, 2, 3, 70.7))
sketch2.addConstraint(Sketcher.Constraint("DistanceX", 5, 3, 4, 3, 118.3))
sketch2.addConstraint(Sketcher.Constraint("DistanceX", 3, 3, 6, 3, 118.3))
sketch2.addConstraint(Sketcher.Constraint("DistanceY", -1, 1, 0, 3, 37.0))
sketch2.addConstraint(Sketcher.Constraint("DistanceX", 4, 3, -1, 1, 28.0426))
sketch2.addConstraint(Sketcher.Constraint("DistanceY", -1, 1, 7, 2, 105.8843))
sketch2.addConstraint(Sketcher.Constraint("DistanceY", -1, 1, 11, 2, 10.8843))
sketch2.addConstraint(Sketcher.Constraint("DistanceX", 47, 2, -1, 1, 90.0773))
pocket1 = body.newObject("PartDesign::Pocket", "Pocket")
pocket1.Profile = sketch2
pocket1.Length = 40
pocket1.Midplane = True

sketch3 = body.newObject("Sketcher::SketchObject", "Sketch002")
sketch3.AttachmentSupport = (doc.getObject("XZ_Plane"), [""])
sketch3.MapMode = "FlatFace"
sketch3.AttachmentOffset = App.Placement(App.Vector(0, 0, -5), App.Rotation())
sketch3.addGeometry(Part.Circle(App.Vector(-48.4143, 2, 0), App.Vector(0, 0, 1), 1.5), False)
sketch3.addGeometry(Part.Circle(App.Vector(-119.1143, 2, 0), App.Vector(0, 0, 1), 1.5), False)
sketch3.addGeometry(Part.Circle(App.Vector(-119.1143, 120.3, 0), App.Vector(0, 0, 1), 1.5), False)
sketch3.addGeometry(Part.Circle(App.Vector(-48.4143, 120.3, 0), App.Vector(0, 0, 1), 1.5), False)
sketch3.addConstraint(Sketcher.Constraint("Equal", 0, 1))
sketch3.addConstraint(Sketcher.Constraint("Equal", 1, 2))
sketch3.addConstraint(Sketcher.Constraint("Equal", 2, 3))
sketch3.addConstraint(Sketcher.Constraint("Horizontal", 0, 3, 1, 3))
sketch3.addConstraint(Sketcher.Constraint("Horizontal", 2, 3, 3, 3))
sketch3.addConstraint(Sketcher.Constraint("Vertical", 1, 3, 2, 3))
sketch3.addConstraint(Sketcher.Constraint("Vertical", 0, 3, 3, 3))
sketch3.addConstraint(Sketcher.Constraint("Diameter", 0, 3.0))
sketch3.addConstraint(Sketcher.Constraint("DistanceX", 1, 3, 0, 3, 70.7))
sketch3.addConstraint(Sketcher.Constraint("DistanceY", 1, 3, 2, 3, 118.3))
sketch3.addConstraint(Sketcher.Constraint("DistanceY", -1, 1, 0, 3, 2.0))
sketch3.addConstraint(Sketcher.Constraint("DistanceX", 0, 3, -1, 1, 48.4143))
pocket2 = body.newObject("PartDesign::Pocket", "Pocket001")
pocket2.Profile = sketch3
pocket2.Length = 30
pocket2.Midplane = True

doc.recompute()
